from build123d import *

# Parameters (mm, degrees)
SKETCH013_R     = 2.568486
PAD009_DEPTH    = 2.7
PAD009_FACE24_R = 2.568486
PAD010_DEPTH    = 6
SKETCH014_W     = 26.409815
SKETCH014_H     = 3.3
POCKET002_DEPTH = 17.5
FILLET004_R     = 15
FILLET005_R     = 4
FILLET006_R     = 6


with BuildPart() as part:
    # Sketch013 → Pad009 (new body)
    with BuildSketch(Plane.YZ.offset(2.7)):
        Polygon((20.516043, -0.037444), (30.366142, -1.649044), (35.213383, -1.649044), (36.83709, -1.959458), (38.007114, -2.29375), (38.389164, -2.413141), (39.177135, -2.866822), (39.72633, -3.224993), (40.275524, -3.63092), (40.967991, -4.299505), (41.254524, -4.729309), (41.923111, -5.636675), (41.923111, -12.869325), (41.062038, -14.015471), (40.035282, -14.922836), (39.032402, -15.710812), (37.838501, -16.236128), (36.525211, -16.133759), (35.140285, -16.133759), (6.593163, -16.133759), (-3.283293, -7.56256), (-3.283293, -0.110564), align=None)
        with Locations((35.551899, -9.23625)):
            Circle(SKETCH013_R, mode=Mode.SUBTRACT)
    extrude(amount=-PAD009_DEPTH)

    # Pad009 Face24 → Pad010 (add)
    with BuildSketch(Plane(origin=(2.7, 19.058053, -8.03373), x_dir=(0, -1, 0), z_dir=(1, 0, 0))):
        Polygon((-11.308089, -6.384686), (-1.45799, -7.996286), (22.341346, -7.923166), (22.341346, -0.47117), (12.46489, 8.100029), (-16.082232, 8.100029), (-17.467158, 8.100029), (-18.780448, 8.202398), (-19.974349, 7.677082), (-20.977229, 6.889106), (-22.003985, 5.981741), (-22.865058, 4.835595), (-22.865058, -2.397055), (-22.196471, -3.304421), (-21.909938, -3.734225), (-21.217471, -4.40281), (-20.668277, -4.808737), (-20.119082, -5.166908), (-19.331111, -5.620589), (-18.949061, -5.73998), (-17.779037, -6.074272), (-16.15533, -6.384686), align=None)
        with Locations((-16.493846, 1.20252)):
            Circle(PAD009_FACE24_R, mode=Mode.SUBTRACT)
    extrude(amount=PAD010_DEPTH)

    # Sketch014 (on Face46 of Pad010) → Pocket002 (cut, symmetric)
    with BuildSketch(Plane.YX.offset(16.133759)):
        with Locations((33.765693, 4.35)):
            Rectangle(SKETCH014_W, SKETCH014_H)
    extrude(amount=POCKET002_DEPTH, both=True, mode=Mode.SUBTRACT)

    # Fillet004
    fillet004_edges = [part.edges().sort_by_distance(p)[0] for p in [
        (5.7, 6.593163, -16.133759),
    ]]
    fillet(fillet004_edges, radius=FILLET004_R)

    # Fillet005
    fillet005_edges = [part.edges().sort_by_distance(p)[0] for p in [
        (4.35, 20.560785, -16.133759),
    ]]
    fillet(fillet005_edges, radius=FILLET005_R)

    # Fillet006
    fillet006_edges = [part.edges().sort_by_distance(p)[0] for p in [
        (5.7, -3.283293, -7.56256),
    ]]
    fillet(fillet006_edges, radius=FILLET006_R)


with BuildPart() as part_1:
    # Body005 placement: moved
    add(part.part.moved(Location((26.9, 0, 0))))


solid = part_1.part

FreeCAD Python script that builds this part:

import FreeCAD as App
import Part
import Sketcher

V = App.Vector


def edges_at(feature, points):
    """Names of the edges that pass closest to the given points."""
    edges = feature.Shape.Edges
    near = lambda p: min(range(len(edges)), key=lambda i: edges[i].distToShape(Part.Vertex(*p))[0])
    return sorted({f"Edge{near(p) + 1}" for p in points})

doc = App.newDocument("Part")
body = doc.addObject("PartDesign::Body", "Body")

# Sketch on YZ plane
sketch1 = body.newObject("Sketcher::SketchObject", "Sketch")
sketch1.AttachmentSupport = (doc.getObject("YZ_Plane"), [""])
sketch1.MapMode = "FlatFace"
sketch1.AttachmentOffset = App.Placement(V(0, 0, 2.7), App.Rotation())
sketch1.addGeometry(Part.LineSegment(V(30.37, -1.65, 0), V(20.52, -0.04, 0)), False)
sketch1.addGeometry(Part.LineSegment(V(20.52, -0.04, 0), V(-3.28, -0.11, 0)), False)
sketch1.addGeometry(Part.LineSegment(V(-3.28, -0.11, 0), V(-3.28, -7.56, 0)), False)
sketch1.addGeometry(Part.LineSegment(V(-3.28, -7.56, 0), V(6.59, -16.13, 0)), False)
sketch1.addGeometry(Part.LineSegment(V(6.59, -16.13, 0), V(36.53, -16.13, 0)), False)
sketch1.addGeometry(Part.LineSegment(V(36.53, -16.13, 0), V(37.84, -16.24, 0)), False)
sketch1.addGeometry(Part.LineSegment(V(37.84, -16.24, 0), V(39.03, -15.71, 0)), False)
sketch1.addGeometry(Part.LineSegment(V(39.03, -15.71, 0), V(40.04, -14.92, 0)), False)
sketch1.addGeometry(Part.LineSegment(V(40.04, -14.92, 0), V(41.06, -14.02, 0)), False)
sketch1.addGeometry(Part.LineSegment(V(41.06, -14.02, 0), V(41.92, -12.87, 0)), False)
sketch1.addGeometry(Part.LineSegment(V(41.92, -12.87, 0), V(41.92, -5.64, 0)), False)
sketch1.addGeometry(Part.LineSegment(V(41.92, -5.64, 0), V(41.25, -4.73, 0)), False)
sketch1.addGeometry(Part.LineSegment(V(41.25, -4.73, 0), V(40.97, -4.3, 0)), False)
sketch1.addGeometry(Part.LineSegment(V(40.97, -4.3, 0), V(40.28, -3.63, 0)), False)
sketch1.addGeometry(Part.LineSegment(V(40.28, -3.63, 0), V(39.73, -3.22, 0)), False)
sketch1.addGeometry(Part.LineSegment(V(39.73, -3.22, 0), V(39.18, -2.87, 0)), False)
sketch1.addGeometry(Part.LineSegment(V(39.18, -2.87, 0), V(38.39, -2.41, 0)), False)
sketch1.addGeometry(Part.LineSegment(V(38.39, -2.41, 0), V(38.01, -2.29, 0)), False)
sketch1.addGeometry(Part.LineSegment(V(38.01, -2.29, 0), V(36.84, -1.96, 0)), False)
sketch1.addGeometry(Part.LineSegment(V(36.84, -1.96, 0), V(35.21, -1.65, 0)), False)
sketch1.addGeometry(Part.LineSegment(V(35.21, -1.65, 0), V(30.37, -1.65, 0)), False)
sketch1.addGeometry(Part.Circle(V(35.55, -9.24, 0), V(0, 0, 1), 2.57), False)
sketch1.addConstraint(Sketcher.Constraint("Coincident", 0, 2, 1, 1))
sketch1.addConstraint(Sketcher.Constraint("Coincident", 1, 2, 2, 1))
sketch1.addConstraint(Sketcher.Constraint("Coincident", 2, 2, 3, 1))
sketch1.addConstraint(Sketcher.Constraint("Coincident", 3, 2, 4, 1))
sketch1.addConstraint(Sketcher.Constraint("Coincident", 4, 2, 5, 1))
sketch1.addConstraint(Sketcher.Constraint("Coincident", 5, 2, 6, 1))
sketch1.addConstraint(Sketcher.Constraint("Coincident", 6, 2, 7, 1))
sketch1.addConstraint(Sketcher.Constraint("Coincident", 7, 2, 8, 1))
sketch1.addConstraint(Sketcher.Constraint("Coincident", 8, 2, 9, 1))
sketch1.addConstraint(Sketcher.Constraint("Coincident", 9, 2, 10, 1))
sketch1.addConstraint(Sketcher.Constraint("Coincident", 10, 2, 11, 1))
sketch1.addConstraint(Sketcher.Constraint("Coincident", 11, 2, 12, 1))
sketch1.addConstraint(Sketcher.Constraint("Coincident", 12, 2, 13, 1))
sketch1.addConstraint(Sketcher.Constraint("Coincident", 13, 2, 14, 1))
sketch1.addConstraint(Sketcher.Constraint("Coincident", 14, 2, 15, 1))
sketch1.addConstraint(Sketcher.Constraint("Coincident", 15, 2, 16, 1))
sketch1.addConstraint(Sketcher.Constraint("Coincident", 16, 2, 17, 1))
sketch1.addConstraint(Sketcher.Constraint("Coincident", 17, 2, 18, 1))
sketch1.addConstraint(Sketcher.Constraint("Coincident", 18, 2, 19, 1))
sketch1.addConstraint(Sketcher.Constraint("Coincident", 19, 2, 20, 1))
sketch1.addConstraint(Sketcher.Constraint("Coincident", 20, 2, 0, 1))
sketch1.addConstraint(Sketcher.Constraint("Vertical", 2))
sketch1.addConstraint(Sketcher.Constraint("Horizontal", 4))
sketch1.addConstraint(Sketcher.Constraint("Vertical", 10))
sketch1.addConstraint(Sketcher.Constraint("Horizontal", 20))
sketch1.addConstraint(Sketcher.Constraint("Diameter", 21, 5.136972))
sketch1.addConstraint(Sketcher.Constraint("DistanceX", 13, 2, 11, 2, 0.979))
sketch1.addConstraint(Sketcher.Constraint("DistanceX", 20, 2, 20, 1, 4.847241))
sketch1.addConstraint(Sketcher.Constraint("DistanceY", 10, 1, 10, 2, 7.23265))
sketch1.addConstraint(Sketcher.Constraint("DistanceX", -1, 1, 21, 3, 35.551899))
sketch1.addConstraint(Sketcher.Constraint("DistanceX", -1, 1, 5, 2, 37.838501))
sketch1.addConstraint(Sketcher.Constraint("DistanceX", -1, 1, 6, 2, 39.032402))
sketch1.addConstraint(Sketcher.Constraint("DistanceY", 3, 2, 2, 2, 8.571199))
sketch1.addConstraint(Sketcher.Constraint("DistanceX", 4, 2, 9, 2, 5.3979))
sketch1.addConstraint(Sketcher.Constraint("DistanceY", 13, 2, 15, 2, 0.764098))
sketch1.addConstraint(Sketcher.Constraint("Distance", 1, 23.799448))
sketch1.addConstraint(Sketcher.Constraint("Distance", 6, 1.304361))
sketch1.addConstraint(Sketcher.Constraint("Distance", 7, 1.275411))
sketch1.addConstraint(Sketcher.Constraint("Distance", 9, 1.433561))
sketch1.addConstraint(Sketcher.Constraint("Distance", 12, 0.516558))
sketch1.addConstraint(Sketcher.Constraint("Distance", 14, 0.682928))
sketch1.addConstraint(Sketcher.Constraint("Distance", 15, 0.655669))
sketch1.addConstraint(Sketcher.Constraint("Distance", 17, 0.40027))
sketch1.addConstraint(Sketcher.Constraint("DistanceX", 4, 1, 4, 2, 29.932048))
sketch1.addConstraint(Sketcher.Constraint("DistanceY", 2, 2, 2, 1, 7.451996))
sketch1.addConstraint(Sketcher.Constraint("DistanceY", 21, 3, -1, 1, 9.23625))
sketch1.addConstraint(Sketcher.Constraint("DistanceY", 2, 2, -1, 1, 7.56256))
sketch1.addConstraint(Sketcher.Constraint("DistanceX", -1, 1, 4, 2, 36.525211))
sketch1.addConstraint(Sketcher.Constraint("DistanceY", 5, 2, -1, 1, 16.236128))
sketch1.addConstraint(Sketcher.Constraint("DistanceY", 8, 2, -1, 1, 14.015471))
sketch1.addConstraint(Sketcher.Constraint("DistanceY", 11, 2, -1, 1, 4.729309))
sketch1.addConstraint(Sketcher.Constraint("DistanceX", -1, 1, 12, 2, 40.967991))
sketch1.addConstraint(Sketcher.Constraint("DistanceY", 13, 2, -1, 1, 3.63092))
sketch1.addConstraint(Sketcher.Constraint("DistanceX", -1, 1, 14, 2, 39.72633))
sketch1.addConstraint(Sketcher.Constraint("DistanceY", 16, 2, -1, 1, 2.413141))
sketch1.addConstraint(Sketcher.Constraint("DistanceY", 17, 2, -1, 1, 2.29375))
sketch1.addConstraint(Sketcher.Constraint("DistanceX", -1, 1, 18, 2, 36.83709))
sketch1.addConstraint(Sketcher.Constraint("DistanceX", -1, 1, 20, 2, 30.366142))
sketch1.addConstraint(Sketcher.Constraint("DistanceY", 1, 2, 0, 2, 0.07312))
sketch1.addConstraint(Sketcher.Constraint("DistanceX", 3, 2, 0, 2, 13.92288))
sketch1.addConstraint(Sketcher.Constraint("DistanceX", 6, 2, 7, 2, 1.00288))
sketch1.addConstraint(Sketcher.Constraint("DistanceX", 21, 3, 8, 2, 5.510139))
sketch1.addConstraint(Sketcher.Constraint("DistanceY", 10, 2, 12, 2, 1.33717))
sketch1.addConstraint(Sketcher.Constraint("DistanceX", 16, 2, 15, 2, 0.787971))
sketch1.addConstraint(Sketcher.Constraint("DistanceY", 14, 2, 19, 2, 1.575949))
sketch1.addConstraint(Sketcher.Constraint("Distance", 18, 1.216843))
pad1 = body.newObject("PartDesign::Pad", "Pad")
pad1.Profile = sketch1
pad1.Length = 2.7
pad1.Reversed = True

# Sketch on YZ plane
sketch2 = body.newObject("Sketcher::SketchObject", "Sketch001")
sketch2.AttachmentSupport = (doc.getObject("YZ_Plane"), [""])
sketch2.MapMode = "FlatFace"
sketch2.AttachmentOffset = App.Placement(V(0, 0, 2.7), App.Rotation())
sketch2.addGeometry(Part.LineSegment(V(30.37, -1.65, 0), V(20.52, -0.04, 0)), False)
sketch2.addGeometry(Part.LineSegment(V(20.52, -0.04, 0), V(-3.28, -0.11, 0)), False)
sketch2.addGeometry(Part.LineSegment(V(-3.28, -0.11, 0), V(-3.28, -7.56, 0)), False)
sketch2.addGeometry(Part.LineSegment(V(-3.28, -7.56, 0), V(6.59, -16.13, 0)), False)
sketch2.addGeometry(Part.LineSegment(V(6.59, -16.13, 0), V(36.53, -16.13, 0)), False)
sketch2.addGeometry(Part.LineSegment(V(36.53, -16.13, 0), V(37.84, -16.24, 0)), False)
sketch2.addGeometry(Part.LineSegment(V(37.84, -16.24, 0), V(39.03, -15.71, 0)), False)
sketch2.addGeometry(Part.LineSegment(V(39.03, -15.71, 0), V(40.04, -14.92, 0)), False)
sketch2.addGeometry(Part.LineSegment(V(40.04, -14.92, 0), V(41.06, -14.02, 0)), False)
sketch2.addGeometry(Part.LineSegment(V(41.06, -14.02, 0), V(41.92, -12.87, 0)), False)
sketch2.addGeometry(Part.LineSegment(V(41.92, -12.87, 0), V(41.92, -5.64, 0)), False)
sketch2.addGeometry(Part.LineSegment(V(41.92, -5.64, 0), V(41.25, -4.73, 0)), False)
sketch2.addGeometry(Part.LineSegment(V(41.25, -4.73, 0), V(40.97, -4.3, 0)), False)
sketch2.addGeometry(Part.LineSegment(V(40.97, -4.3, 0), V(40.28, -3.63, 0)), False)
sketch2.addGeometry(Part.LineSegment(V(40.28, -3.63, 0), V(39.73, -3.22, 0)), False)
sketch2.addGeometry(Part.LineSegment(V(39.73, -3.22, 0), V(39.18, -2.87, 0)), False)
sketch2.addGeometry(Part.LineSegment(V(39.18, -2.87, 0), V(38.39, -2.41, 0)), False)
sketch2.addGeometry(Part.LineSegment(V(38.39, -2.41, 0), V(38.01, -2.29, 0)), False)
sketch2.addGeometry(Part.LineSegment(V(38.01, -2.29, 0), V(36.84, -1.96, 0)), False)
sketch2.addGeometry(Part.LineSegment(V(36.84, -1.96, 0), V(35.21, -1.65, 0)), False)
sketch2.addGeometry(Part.LineSegment(V(35.21, -1.65, 0), V(30.37, -1.65, 0)), False)
sketch2.addGeometry(Part.Circle(V(35.55, -9.24, 0), V(0, 0, 1), 2.57), False)
sketch2.addConstraint(Sketcher.Constraint("Coincident", 0, 2, 1, 1))
sketch2.addConstraint(Sketcher.Constraint("Coincident", 1, 2, 2, 1))
sketch2.addConstraint(Sketcher.Constraint("Coincident", 2, 2, 3, 1))
sketch2.addConstraint(Sketcher.Constraint("Coincident", 3, 2, 4, 1))
sketch2.addConstraint(Sketcher.Constraint("Coincident", 4, 2, 5, 1))
sketch2.addConstraint(Sketcher.Constraint("Coincident", 5, 2, 6, 1))
sketch2.addConstraint(Sketcher.Constraint("Coincident", 6, 2, 7, 1))
sketch2.addConstraint(Sketcher.Constraint("Coincident", 7, 2, 8, 1))
sketch2.addConstraint(Sketcher.Constraint("Coincident", 8, 2, 9, 1))
sketch2.addConstraint(Sketcher.Constraint("Coincident", 9, 2, 10, 1))
sketch2.addConstraint(Sketcher.Constraint("Coincident", 10, 2, 11, 1))
sketch2.addConstraint(Sketcher.Constraint("Coincident", 11, 2, 12, 1))
sketch2.addConstraint(Sketcher.Constraint("Coincident", 12, 2, 13, 1))
sketch2.addConstraint(Sketcher.Constraint("Coincident", 13, 2, 14, 1))
sketch2.addConstraint(Sketcher.Constraint("Coincident", 14, 2, 15, 1))
sketch2.addConstraint(Sketcher.Constraint("Coincident", 15, 2, 16, 1))
sketch2.addConstraint(Sketcher.Constraint("Coincident", 16, 2, 17, 1))
sketch2.addConstraint(Sketcher.Constraint("Coincident", 17, 2, 18, 1))
sketch2.addConstraint(Sketcher.Constraint("Coincident", 18, 2, 19, 1))
sketch2.addConstraint(Sketcher.Constraint("Coincident", 19, 2, 20, 1))
sketch2.addConstraint(Sketcher.Constraint("Coincident", 20, 2, 0, 1))
sketch2.addConstraint(Sketcher.Constraint("Vertical", 2))
sketch2.addConstraint(Sketcher.Constraint("Horizontal", 4))
sketch2.addConstraint(Sketcher.Constraint("Vertical", 10))
sketch2.addConstraint(Sketcher.Constraint("Horizontal", 20))
sketch2.addConstraint(Sketcher.Constraint("Diameter", 21, 5.136972))
sketch2.addConstraint(Sketcher.Constraint("DistanceX", 13, 2, 11, 2, 0.979))
sketch2.addConstraint(Sketcher.Constraint("DistanceX", 20, 2, 20, 1, 4.847241))
sketch2.addConstraint(Sketcher.Constraint("DistanceY", 10, 1, 10, 2, 7.23265))
sketch2.addConstraint(Sketcher.Constraint("DistanceX", -1, 1, 21, 3, 35.551899))
sketch2.addConstraint(Sketcher.Constraint("DistanceX", -1, 1, 5, 2, 37.838501))
sketch2.addConstraint(Sketcher.Constraint("DistanceX", -1, 1, 6, 2, 39.032402))
sketch2.addConstraint(Sketcher.Constraint("DistanceY", 3, 2, 2, 2, 8.571199))
sketch2.addConstraint(Sketcher.Constraint("DistanceX", 4, 2, 9, 2, 5.3979))
sketch2.addConstraint(Sketcher.Constraint("DistanceY", 13, 2, 15, 2, 0.764098))
sketch2.addConstraint(Sketcher.Constraint("Distance", 1, 23.799448))
sketch2.addConstraint(Sketcher.Constraint("Distance", 6, 1.304361))
sketch2.addConstraint(Sketcher.Constraint("Distance", 7, 1.275411))
sketch2.addConstraint(Sketcher.Constraint("Distance", 9, 1.433561))
sketch2.addConstraint(Sketcher.Constraint("Distance", 12, 0.516558))
sketch2.addConstraint(Sketcher.Constraint("Distance", 14, 0.682928))
sketch2.addConstraint(Sketcher.Constraint("Distance", 15, 0.655669))
sketch2.addConstraint(Sketcher.Constraint("Distance", 17, 0.40027))
sketch2.addConstraint(Sketcher.Constraint("DistanceX", 4, 1, 4, 2, 29.932048))
sketch2.addConstraint(Sketcher.Constraint("DistanceY", 2, 2, 2, 1, 7.451996))
sketch2.addConstraint(Sketcher.Constraint("DistanceY", 21, 3, -1, 1, 9.23625))
sketch2.addConstraint(Sketcher.Constraint("DistanceY", 2, 2, -1, 1, 7.56256))
sketch2.addConstraint(Sketcher.Constraint("DistanceX", -1, 1, 4, 2, 36.525211))
sketch2.addConstraint(Sketcher.Constraint("DistanceY", 5, 2, -1, 1, 16.236128))
sketch2.addConstraint(Sketcher.Constraint("DistanceY", 8, 2, -1, 1, 14.015471))
sketch2.addConstraint(Sketcher.Constraint("DistanceY", 11, 2, -1, 1, 4.729309))
sketch2.addConstraint(Sketcher.Constraint("DistanceX", -1, 1, 12, 2, 40.967991))
sketch2.addConstraint(Sketcher.Constraint("DistanceY", 13, 2, -1, 1, 3.63092))
sketch2.addConstraint(Sketcher.Constraint("DistanceX", -1, 1, 14, 2, 39.72633))
sketch2.addConstraint(Sketcher.Constraint("DistanceY", 16, 2, -1, 1, 2.413141))
sketch2.addConstraint(Sketcher.Constraint("DistanceY", 17, 2, -1, 1, 2.29375))
sketch2.addConstraint(Sketcher.Constraint("DistanceX", -1, 1, 18, 2, 36.83709))
sketch2.addConstraint(Sketcher.Constraint("DistanceX", -1, 1, 20, 2, 30.366142))
sketch2.addConstraint(Sketcher.Constraint("DistanceY", 1, 2, 0, 2, 0.07312))
sketch2.addConstraint(Sketcher.Constraint("DistanceX", 3, 2, 0, 2, 13.92288))
sketch2.addConstraint(Sketcher.Constraint("DistanceX", 6, 2, 7, 2, 1.00288))
sketch2.addConstraint(Sketcher.Constraint("DistanceX", 21, 3, 8, 2, 5.510139))
sketch2.addConstraint(Sketcher.Constraint("DistanceY", 10, 2, 12, 2, 1.33717))
sketch2.addConstraint(Sketcher.Constraint("DistanceX", 16, 2, 15, 2, 0.787971))
sketch2.addConstraint(Sketcher.Constraint("DistanceY", 14, 2, 19, 2, 1.575949))
sketch2.addConstraint(Sketcher.Constraint("Distance", 18, 1.216843))
pad2 = body.newObject("PartDesign::Pad", "Pad001")
pad2.Profile = sketch2
pad2.Length = 6

# Sketch on XY plane
sketch3 = body.newObject("Sketcher::SketchObject", "Sketch002")
sketch3.AttachmentSupport = (doc.getObject("XY_Plane"), [""])
sketch3.MapMode = "FlatFace"
sketch3.AttachmentOffset = App.Placement(V(0, 0, -16.133759), App.Rotation())
sketch3.addGeometry(Part.LineSegment(V(6, 20.6, 0), V(2.7, 20.6, 0)), False)
sketch3.addGeometry(Part.LineSegment(V(2.7, 20.6, 0), V(2.7, 47, 0)), False)
sketch3.addGeometry(Part.LineSegment(V(2.7, 47, 0), V(6, 47, 0)), False)
sketch3.addGeometry(Part.LineSegment(V(6, 47, 0), V(6, 20.6, 0)), False)
sketch3.addConstraint(Sketcher.Constraint("Coincident", 0, 2, 1, 1))
sketch3.addConstraint(Sketcher.Constraint("Coincident", 1, 2, 2, 1))
sketch3.addConstraint(Sketcher.Constraint("Coincident", 2, 2, 3, 1))
sketch3.addConstraint(Sketcher.Constraint("Coincident", 3, 2, 0, 1))
sketch3.addConstraint(Sketcher.Constraint("Horizontal", 0))
sketch3.addConstraint(Sketcher.Constraint("Vertical", 1))
sketch3.addConstraint(Sketcher.Constraint("Horizontal", 2))
sketch3.addConstraint(Sketcher.Constraint("Vertical", 3))
sketch3.addConstraint(Sketcher.Constraint("DistanceX", 0, 2, 0, 1, 3.3))
sketch3.addConstraint(Sketcher.Constraint("DistanceX", -1, 1, 2, 2, 6.0))
sketch3.addConstraint(Sketcher.Constraint("DistanceY", -1, 1, 1, 2, 46.970601))
sketch3.addConstraint(Sketcher.Constraint("DistanceY", 1, 1, 1, 2, 26.409815))
pocket1 = body.newObject("PartDesign::Pocket", "Pocket")
pocket1.Profile = sketch3
pocket1.Length = 35
pocket1.Midplane = True
doc.recompute()

fillet = body.newObject("PartDesign::Fillet", "Fillet")
fillet.Base = (pocket1, edges_at(pocket1, [(4.35, 6.593, -16.134)]))
fillet.Radius = 15
doc.recompute()

fillet2 = body.newObject("PartDesign::Fillet", "Fillet001")
fillet2.Base = (fillet, edges_at(fillet, [(4.35, 20.561, -16.134)]))
fillet2.Radius = 4
doc.recompute()

fillet3 = body.newObject("PartDesign::Fillet", "Fillet002")
fillet3.Base = (fillet2, edges_at(fillet2, [(4.35, -3.283, -7.563)]))
fillet3.Radius = 6
body2 = doc.addObject("PartDesign::Body", "Body001")
doc.recompute()

body.Placement = App.Placement(V(26.9, 0, 0), App.Rotation(V(0, 0, 1), 0))
boolean = body2.newObject("PartDesign::Boolean", "Boolean")
boolean.Type = "Fuse"
boolean.addObjects([body])

doc.recompute()
